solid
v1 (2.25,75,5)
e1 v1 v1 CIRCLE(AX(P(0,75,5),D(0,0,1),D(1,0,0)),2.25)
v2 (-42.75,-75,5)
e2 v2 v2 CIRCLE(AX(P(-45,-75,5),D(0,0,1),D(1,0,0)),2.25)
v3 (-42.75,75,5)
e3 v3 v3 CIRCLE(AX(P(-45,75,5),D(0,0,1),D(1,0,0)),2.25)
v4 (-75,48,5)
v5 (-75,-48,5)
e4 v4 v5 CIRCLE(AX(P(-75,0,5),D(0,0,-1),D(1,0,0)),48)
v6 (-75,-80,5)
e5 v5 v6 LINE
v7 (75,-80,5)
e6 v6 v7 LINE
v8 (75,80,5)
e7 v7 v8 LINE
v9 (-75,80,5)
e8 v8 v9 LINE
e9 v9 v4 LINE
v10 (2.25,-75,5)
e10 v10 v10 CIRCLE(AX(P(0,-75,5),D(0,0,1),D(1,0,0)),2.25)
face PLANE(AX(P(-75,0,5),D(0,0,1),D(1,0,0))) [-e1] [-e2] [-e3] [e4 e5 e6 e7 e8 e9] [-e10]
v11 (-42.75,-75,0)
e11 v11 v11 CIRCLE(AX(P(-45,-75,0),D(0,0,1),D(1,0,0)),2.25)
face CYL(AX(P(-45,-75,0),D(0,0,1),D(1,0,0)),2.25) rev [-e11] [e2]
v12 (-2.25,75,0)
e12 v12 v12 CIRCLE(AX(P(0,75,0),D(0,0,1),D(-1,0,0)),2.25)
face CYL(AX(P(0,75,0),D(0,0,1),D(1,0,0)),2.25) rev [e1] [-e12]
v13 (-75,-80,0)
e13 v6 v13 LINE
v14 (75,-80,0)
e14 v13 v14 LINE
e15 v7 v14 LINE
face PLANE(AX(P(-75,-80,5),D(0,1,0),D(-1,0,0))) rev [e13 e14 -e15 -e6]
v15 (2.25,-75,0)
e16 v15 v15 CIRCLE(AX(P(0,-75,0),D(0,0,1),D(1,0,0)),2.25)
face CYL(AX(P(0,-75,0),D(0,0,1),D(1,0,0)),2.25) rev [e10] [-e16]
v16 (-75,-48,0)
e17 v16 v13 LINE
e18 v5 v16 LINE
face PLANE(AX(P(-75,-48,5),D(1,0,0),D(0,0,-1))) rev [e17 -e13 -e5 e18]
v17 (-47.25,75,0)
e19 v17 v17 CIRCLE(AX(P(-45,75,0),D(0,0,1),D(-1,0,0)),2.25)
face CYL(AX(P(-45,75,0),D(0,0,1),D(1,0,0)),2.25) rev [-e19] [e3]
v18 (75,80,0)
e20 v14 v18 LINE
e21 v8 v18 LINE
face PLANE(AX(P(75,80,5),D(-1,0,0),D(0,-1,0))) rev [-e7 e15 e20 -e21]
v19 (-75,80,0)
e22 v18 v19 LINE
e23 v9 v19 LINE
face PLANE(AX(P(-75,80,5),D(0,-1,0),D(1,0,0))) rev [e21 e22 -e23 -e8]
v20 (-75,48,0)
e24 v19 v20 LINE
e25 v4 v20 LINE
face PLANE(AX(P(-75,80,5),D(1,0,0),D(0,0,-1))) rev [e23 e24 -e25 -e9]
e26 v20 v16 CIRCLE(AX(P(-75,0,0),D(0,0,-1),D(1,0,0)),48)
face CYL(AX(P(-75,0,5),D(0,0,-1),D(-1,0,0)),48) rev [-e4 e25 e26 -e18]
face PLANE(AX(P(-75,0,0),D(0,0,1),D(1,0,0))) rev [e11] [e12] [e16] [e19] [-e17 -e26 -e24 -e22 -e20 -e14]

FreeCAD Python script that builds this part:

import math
import FreeCAD as App
import Part
import Sketcher
from FreeCAD import Vector

doc = App.newDocument("Part")
params = doc.addObject("Spreadsheet::Sheet", "Params")
for row, (alias, value) in enumerate([
    ("sketch1_radius", "48 mm"),
    ("sketch1_width", "150 mm"),
    ("sketch1_height", "32 mm"),
    ("pad1_length", "5 mm"),
    ("sketch2_diameter", "4.5 mm"),
], start=1):
    params.set(f"A{row}", alias)
    params.set(f"B{row}", "=" + value)
    params.setAlias(f"B{row}", alias)

body = doc.addObject("PartDesign::Body", "Body")

# Sketch on XY plane
sketch1 = body.newObject("Sketcher::SketchObject", "Sketch")
sketch1.AttachmentSupport = (doc.getObject("XY_Plane"), [""])
sketch1.MapMode = "FlatFace"
sketch1.addGeometry(Part.LineSegment(Vector(-75, -48, 0), Vector(-75, -80, 0)), False)
sketch1.addGeometry(Part.LineSegment(Vector(-75, -80, 0), Vector(75, -80, 0)), False)
sketch1.addGeometry(Part.LineSegment(Vector(75, -80, 0), Vector(75, 80, 0)), False)
sketch1.addGeometry(Part.LineSegment(Vector(75, 80, 0), Vector(-75, 80, 0)), False)
sketch1.addGeometry(Part.LineSegment(Vector(-75, 80, 0), Vector(-75, 48, 0)), False)
sketch1.addGeometry(Part.ArcOfCircle(Part.Circle(Vector(-75, 0, 0), Vector(0, 0, 1), 48), math.radians(-90), math.radians(90)), False)
sketch1.addConstraint(Sketcher.Constraint("Coincident", 0, 2, 1, 1))
sketch1.addConstraint(Sketcher.Constraint("Coincident", 1, 2, 2, 1))
sketch1.addConstraint(Sketcher.Constraint("Coincident", 2, 2, 3, 1))
sketch1.addConstraint(Sketcher.Constraint("Coincident", 3, 2, 4, 1))
sketch1.addConstraint(Sketcher.Constraint("Coincident", 4, 2, 5, 2))
sketch1.addConstraint(Sketcher.Constraint("Coincident", 5, 1, 0, 1))
sketch1.addConstraint(Sketcher.Constraint("Vertical", 0))
sketch1.addConstraint(Sketcher.Constraint("Horizontal", 1))
sketch1.addConstraint(Sketcher.Constraint("Vertical", 2))
sketch1.addConstraint(Sketcher.Constraint("Horizontal", 3))
sketch1.addConstraint(Sketcher.Constraint("Vertical", 4))
sketch1.addConstraint(Sketcher.Constraint("Symmetric", 0, 2, 2, 2, -1, 1))
sketch1.addConstraint(Sketcher.Constraint("Symmetric", 4, 2, 5, 1, -1))
sketch1.addConstraint(Sketcher.Constraint("Vertical", 5, 3, 0, 2))
sketch1.addConstraint(Sketcher.Constraint("Radius", 5, 48.0))
sketch1.addConstraint(Sketcher.Constraint("DistanceX", 1, 1, 1, 2, 150.0))
sketch1.addConstraint(Sketcher.Constraint("DistanceY", 0, 2, 0, 1, 32.0))
sketch1.setExpression("Constraints[14]", "Params.sketch1_radius")
sketch1.setExpression("Constraints[15]", "Params.sketch1_width")
sketch1.setExpression("Constraints[16]", "Params.sketch1_height")
pad1 = body.newObject("PartDesign::Pad", "Pad")
pad1.Profile = sketch1
pad1.setExpression("Length", "Params.pad1_length")

# Sketch on XY plane
sketch2 = body.newObject("Sketcher::SketchObject", "Sketch001")
sketch2.AttachmentSupport = (doc.getObject("XY_Plane"), [""])
sketch2.MapMode = "FlatFace"
sketch2.AttachmentOffset = App.Placement(Vector(0, 0, 5), App.Rotation())
sketch2.addGeometry(Part.Circle(Vector(0, -75, 0), Vector(0, 0, 1), 2.2), False)
sketch2.addGeometry(Part.Circle(Vector(-45, -75, 0), Vector(0, 0, 1), 2.2), False)
sketch2.addGeometry(Part.Circle(Vector(0, 75, 0), Vector(0, 0, 1), 2.2), False)
sketch2.addGeometry(Part.Circle(Vector(-45, 75, 0), Vector(0, 0, 1), 2.2), False)
sketch2.addConstraint(Sketcher.Constraint("Equal", 0, 1))
sketch2.addConstraint(Sketcher.Constraint("Equal", 1, 2))
sketch2.addConstraint(Sketcher.Constraint("Equal", 2, 3))
sketch2.addConstraint(Sketcher.Constraint("Symmetric", 0, 3, 2, 3, -1, 1))
sketch2.addConstraint(Sketcher.Constraint("Symmetric", 1, 3, 3, 3, -1))
sketch2.addConstraint(Sketcher.Constraint("PointOnObject", 0, 3, -2))
sketch2.addConstraint(Sketcher.Constraint("Horizontal", 0, 3, 1, 3))
sketch2.addConstraint(Sketcher.Constraint("Diameter", 0, 4.5))
sketch2.addConstraint(Sketcher.Constraint("DistanceY", 0, 3, -1, 1, 75.0))
sketch2.addConstraint(Sketcher.Constraint("DistanceX", 1, 3, -1, 1, 45.0))
sketch2.setExpression("Constraints[7]", "Params.sketch2_diameter")
pocket1 = body.newObject("PartDesign::Pocket", "Pocket")
pocket1.Profile = sketch2
pocket1.Type = "ThroughAll"
pocket1.Midplane = True

doc.recompute()
